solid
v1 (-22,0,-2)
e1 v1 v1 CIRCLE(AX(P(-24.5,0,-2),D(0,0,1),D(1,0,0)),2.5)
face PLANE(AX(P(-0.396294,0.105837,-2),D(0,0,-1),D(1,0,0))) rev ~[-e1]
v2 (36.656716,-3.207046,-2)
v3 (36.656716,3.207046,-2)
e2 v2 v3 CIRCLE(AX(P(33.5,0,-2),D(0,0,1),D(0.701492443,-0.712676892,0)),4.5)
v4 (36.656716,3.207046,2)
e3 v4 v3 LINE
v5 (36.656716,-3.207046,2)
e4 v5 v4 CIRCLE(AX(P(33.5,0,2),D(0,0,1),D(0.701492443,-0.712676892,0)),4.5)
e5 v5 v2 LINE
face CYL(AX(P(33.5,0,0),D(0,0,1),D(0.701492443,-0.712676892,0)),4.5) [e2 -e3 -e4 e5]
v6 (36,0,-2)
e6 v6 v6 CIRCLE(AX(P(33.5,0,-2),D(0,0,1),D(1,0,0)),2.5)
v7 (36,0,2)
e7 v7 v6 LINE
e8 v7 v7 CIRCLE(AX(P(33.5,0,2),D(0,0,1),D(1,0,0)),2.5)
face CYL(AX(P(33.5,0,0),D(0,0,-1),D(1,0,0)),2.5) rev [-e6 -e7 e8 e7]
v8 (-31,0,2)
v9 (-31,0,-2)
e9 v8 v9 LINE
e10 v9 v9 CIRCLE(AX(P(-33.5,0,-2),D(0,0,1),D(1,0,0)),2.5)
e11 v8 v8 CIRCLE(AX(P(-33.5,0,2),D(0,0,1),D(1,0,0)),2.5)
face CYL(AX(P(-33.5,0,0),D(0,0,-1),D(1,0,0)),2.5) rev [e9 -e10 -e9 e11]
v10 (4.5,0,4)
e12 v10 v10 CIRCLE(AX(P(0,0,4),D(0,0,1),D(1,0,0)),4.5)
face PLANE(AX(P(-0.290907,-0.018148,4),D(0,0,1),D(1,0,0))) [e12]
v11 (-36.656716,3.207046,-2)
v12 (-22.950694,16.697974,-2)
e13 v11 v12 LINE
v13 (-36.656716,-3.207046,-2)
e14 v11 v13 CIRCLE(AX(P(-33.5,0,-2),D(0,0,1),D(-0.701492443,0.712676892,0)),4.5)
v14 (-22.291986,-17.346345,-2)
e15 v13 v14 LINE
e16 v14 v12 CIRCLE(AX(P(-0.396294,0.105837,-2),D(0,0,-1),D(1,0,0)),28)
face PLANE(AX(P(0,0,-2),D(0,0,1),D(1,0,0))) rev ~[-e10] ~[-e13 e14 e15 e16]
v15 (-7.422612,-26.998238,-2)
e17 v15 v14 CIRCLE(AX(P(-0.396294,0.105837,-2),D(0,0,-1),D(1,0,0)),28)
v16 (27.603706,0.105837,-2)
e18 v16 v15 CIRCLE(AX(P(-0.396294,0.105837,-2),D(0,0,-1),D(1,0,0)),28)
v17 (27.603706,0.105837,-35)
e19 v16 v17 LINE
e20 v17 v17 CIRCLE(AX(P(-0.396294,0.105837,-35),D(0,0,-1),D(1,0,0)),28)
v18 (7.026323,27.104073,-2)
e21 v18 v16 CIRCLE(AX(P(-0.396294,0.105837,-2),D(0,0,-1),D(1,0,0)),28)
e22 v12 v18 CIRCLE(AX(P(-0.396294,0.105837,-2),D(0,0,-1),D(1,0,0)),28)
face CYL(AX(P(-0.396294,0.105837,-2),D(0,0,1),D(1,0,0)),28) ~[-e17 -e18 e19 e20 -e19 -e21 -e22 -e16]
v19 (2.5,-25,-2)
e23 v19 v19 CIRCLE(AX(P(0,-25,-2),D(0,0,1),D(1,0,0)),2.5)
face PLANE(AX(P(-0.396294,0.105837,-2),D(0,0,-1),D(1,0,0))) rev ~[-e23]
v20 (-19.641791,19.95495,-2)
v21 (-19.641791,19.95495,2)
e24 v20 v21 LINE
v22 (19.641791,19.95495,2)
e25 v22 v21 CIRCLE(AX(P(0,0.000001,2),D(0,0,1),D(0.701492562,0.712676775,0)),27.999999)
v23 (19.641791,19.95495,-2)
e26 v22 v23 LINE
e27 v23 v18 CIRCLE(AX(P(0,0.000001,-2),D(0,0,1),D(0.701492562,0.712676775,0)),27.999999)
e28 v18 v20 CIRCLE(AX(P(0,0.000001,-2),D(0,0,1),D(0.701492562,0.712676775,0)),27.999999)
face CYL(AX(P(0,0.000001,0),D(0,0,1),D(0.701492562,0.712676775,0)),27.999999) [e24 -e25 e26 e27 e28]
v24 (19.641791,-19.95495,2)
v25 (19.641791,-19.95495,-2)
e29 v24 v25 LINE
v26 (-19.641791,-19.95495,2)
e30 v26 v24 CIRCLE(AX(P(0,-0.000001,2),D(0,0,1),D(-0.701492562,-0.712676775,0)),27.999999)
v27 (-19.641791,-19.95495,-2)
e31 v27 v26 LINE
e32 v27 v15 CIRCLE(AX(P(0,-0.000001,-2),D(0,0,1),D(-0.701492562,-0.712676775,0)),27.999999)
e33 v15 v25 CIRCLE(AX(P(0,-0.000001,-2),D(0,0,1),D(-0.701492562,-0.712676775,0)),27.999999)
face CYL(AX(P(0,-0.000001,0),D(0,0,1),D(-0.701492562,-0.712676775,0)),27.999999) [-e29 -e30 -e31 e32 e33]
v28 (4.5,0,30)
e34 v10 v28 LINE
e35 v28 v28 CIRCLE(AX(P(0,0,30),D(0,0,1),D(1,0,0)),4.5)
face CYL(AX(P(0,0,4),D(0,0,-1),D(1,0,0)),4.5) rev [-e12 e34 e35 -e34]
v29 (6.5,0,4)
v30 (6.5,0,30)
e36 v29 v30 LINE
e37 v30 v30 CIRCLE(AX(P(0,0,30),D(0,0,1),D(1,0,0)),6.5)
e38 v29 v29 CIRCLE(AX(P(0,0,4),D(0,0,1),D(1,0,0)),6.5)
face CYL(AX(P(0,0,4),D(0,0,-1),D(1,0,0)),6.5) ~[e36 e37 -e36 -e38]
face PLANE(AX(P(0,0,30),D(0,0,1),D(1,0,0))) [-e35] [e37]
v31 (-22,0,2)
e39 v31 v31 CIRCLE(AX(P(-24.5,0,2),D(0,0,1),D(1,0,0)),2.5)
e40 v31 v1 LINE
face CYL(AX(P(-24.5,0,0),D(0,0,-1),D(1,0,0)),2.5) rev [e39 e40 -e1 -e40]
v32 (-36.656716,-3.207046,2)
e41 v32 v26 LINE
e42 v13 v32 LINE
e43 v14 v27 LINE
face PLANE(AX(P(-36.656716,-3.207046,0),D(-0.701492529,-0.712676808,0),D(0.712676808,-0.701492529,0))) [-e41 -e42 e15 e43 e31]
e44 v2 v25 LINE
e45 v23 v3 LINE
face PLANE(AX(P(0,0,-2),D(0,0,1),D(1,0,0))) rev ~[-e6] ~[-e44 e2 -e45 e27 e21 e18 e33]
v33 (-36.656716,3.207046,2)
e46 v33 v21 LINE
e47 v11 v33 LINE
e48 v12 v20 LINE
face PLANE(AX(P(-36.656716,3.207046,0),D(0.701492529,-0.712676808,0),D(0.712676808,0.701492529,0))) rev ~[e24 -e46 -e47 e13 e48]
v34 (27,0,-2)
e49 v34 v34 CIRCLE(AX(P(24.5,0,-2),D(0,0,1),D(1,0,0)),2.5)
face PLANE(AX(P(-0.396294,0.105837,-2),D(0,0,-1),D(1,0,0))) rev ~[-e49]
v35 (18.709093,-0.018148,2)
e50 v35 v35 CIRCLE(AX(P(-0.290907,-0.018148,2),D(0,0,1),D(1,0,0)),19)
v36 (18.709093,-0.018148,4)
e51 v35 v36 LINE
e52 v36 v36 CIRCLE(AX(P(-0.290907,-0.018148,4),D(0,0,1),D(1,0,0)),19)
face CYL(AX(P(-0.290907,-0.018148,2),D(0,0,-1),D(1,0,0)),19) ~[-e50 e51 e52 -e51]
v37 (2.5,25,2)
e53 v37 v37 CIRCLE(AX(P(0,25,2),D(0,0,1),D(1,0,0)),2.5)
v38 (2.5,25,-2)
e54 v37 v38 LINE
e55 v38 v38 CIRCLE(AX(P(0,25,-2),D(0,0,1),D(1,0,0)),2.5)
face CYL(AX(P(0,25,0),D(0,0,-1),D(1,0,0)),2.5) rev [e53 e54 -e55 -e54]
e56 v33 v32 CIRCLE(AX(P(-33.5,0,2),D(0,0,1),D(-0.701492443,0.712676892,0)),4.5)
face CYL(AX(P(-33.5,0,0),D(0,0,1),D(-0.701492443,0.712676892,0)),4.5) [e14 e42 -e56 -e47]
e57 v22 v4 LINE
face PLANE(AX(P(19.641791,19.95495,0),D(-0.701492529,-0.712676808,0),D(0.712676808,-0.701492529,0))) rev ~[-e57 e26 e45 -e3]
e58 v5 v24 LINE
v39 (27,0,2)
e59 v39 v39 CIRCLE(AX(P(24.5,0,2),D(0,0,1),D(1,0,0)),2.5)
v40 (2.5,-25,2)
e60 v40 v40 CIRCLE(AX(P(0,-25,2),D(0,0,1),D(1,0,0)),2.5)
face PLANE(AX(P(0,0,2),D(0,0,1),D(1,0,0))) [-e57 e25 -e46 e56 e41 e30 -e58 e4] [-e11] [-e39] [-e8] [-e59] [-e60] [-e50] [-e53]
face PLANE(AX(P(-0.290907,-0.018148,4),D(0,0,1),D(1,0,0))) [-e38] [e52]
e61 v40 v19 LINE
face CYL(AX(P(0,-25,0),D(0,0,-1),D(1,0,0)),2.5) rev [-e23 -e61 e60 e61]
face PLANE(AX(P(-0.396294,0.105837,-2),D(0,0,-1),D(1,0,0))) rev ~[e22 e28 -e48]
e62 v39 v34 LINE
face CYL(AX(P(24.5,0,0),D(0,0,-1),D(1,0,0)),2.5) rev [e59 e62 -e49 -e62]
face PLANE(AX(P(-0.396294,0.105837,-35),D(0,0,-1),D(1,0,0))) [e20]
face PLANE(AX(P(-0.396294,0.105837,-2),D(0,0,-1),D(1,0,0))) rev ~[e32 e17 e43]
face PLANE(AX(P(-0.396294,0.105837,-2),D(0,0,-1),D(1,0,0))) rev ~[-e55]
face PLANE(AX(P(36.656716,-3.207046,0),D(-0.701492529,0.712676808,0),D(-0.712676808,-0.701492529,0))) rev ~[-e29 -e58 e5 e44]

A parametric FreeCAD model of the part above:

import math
import FreeCAD as App
import Part
import Sketcher

V = App.Vector

doc = App.newDocument("Part")
body = doc.addObject("PartDesign::Body", "Body")

# Sketch on XY plane
sketch1 = body.newObject("Sketcher::SketchObject", "Sketch")
sketch1.AttachmentSupport = (doc.getObject("XY_Plane"), [""])
sketch1.MapMode = "FlatFace"
sketch1.addGeometry([
    Part.ArcOfCircle(Part.Circle(V(0, 0, 0), V(0, 0, 1), 28), math.radians(45), math.radians(135)),  # 0
    Part.LineSegment(V(-19.6, 20, 0), V(-36.7, 3.2, 0)),  # 1
    Part.ArcOfCircle(Part.Circle(V(-33.5, 0, 0), V(0, 0, 1), 4.5), math.radians(135), math.radians(225)),  # 2
    Part.LineSegment(V(-36.7, -3.2, 0), V(-19.6, -20, 0)),  # 3
    Part.ArcOfCircle(Part.Circle(V(0, 0, 0), V(0, 0, 1), 28), math.radians(-135), math.radians(-45)),  # 4
    Part.LineSegment(V(19.6, -20, 0), V(36.7, -3.2, 0)),  # 5
    Part.ArcOfCircle(Part.Circle(V(33.5, 0, 0), V(0, 0, 1), 4.5), math.radians(-45), math.radians(45)),  # 6
    Part.LineSegment(V(36.7, 3.2, 0), V(19.6, 20, 0)),  # 7
    Part.Circle(V(0, -25, 0), V(0, 0, 1), 2.5),  # 8
    Part.Circle(V(-33.5, 0, 0), V(0, 0, 1), 2.5),  # 9
    Part.Circle(V(-24.5, 0, 0), V(0, 0, 1), 2.5),  # 10
    Part.Circle(V(24.5, 0, 0), V(0, 0, 1), 2.5),  # 11
    Part.Circle(V(33.5, 0, 0), V(0, 0, 1), 2.5),  # 12
    Part.Circle(V(0, 25, 0), V(0, 0, 1), 2.5),  # 13
], False)
sketch1.addConstraint([
    Sketcher.Constraint("Tangent", 0, 2, 1, 1),
    Sketcher.Constraint("Tangent", 1, 2, 2, 1),
    Sketcher.Constraint("Tangent", 2, 2, 3, 1),
    Sketcher.Constraint("Tangent", 3, 2, 4, 1),
    Sketcher.Constraint("Tangent", 4, 2, 5, 1),
    Sketcher.Constraint("Tangent", 5, 2, 6, 1),
    Sketcher.Constraint("Tangent", 6, 2, 7, 1),
    Sketcher.Constraint("Tangent", 7, 2, 0, 1),
    Sketcher.Constraint("Coincident", 0, 3, -1, 1),
    Sketcher.Constraint("Coincident", 4, 3, -1, 1),
    Sketcher.Constraint("Coincident", 9, 3, 2, 3),
    Sketcher.Constraint("Coincident", 12, 3, 6, 3),
    Sketcher.Constraint("Equal", 0, 4),
    Sketcher.Constraint("Equal", 2, 6),
    Sketcher.Constraint("Equal", 8, 9),
    Sketcher.Constraint("Equal", 9, 10),
    Sketcher.Constraint("Equal", 10, 11),
    Sketcher.Constraint("Equal", 11, 12),
    Sketcher.Constraint("Equal", 12, 13),
    Sketcher.Constraint("Symmetric", 2, 3, 6, 3, -1, 1),
    Sketcher.Constraint("Symmetric", 10, 3, 11, 3, -1, 1),
    Sketcher.Constraint("Symmetric", 8, 3, 13, 3, -1, 1),
    Sketcher.Constraint("PointOnObject", 2, 3, -1),
    Sketcher.Constraint("PointOnObject", 8, 3, -2),
    Sketcher.Constraint("PointOnObject", 10, 3, -1),
    Sketcher.Constraint("Diameter", 8, 5.0),
    Sketcher.Constraint("Radius", 0, 27.999999),
    Sketcher.Constraint("Radius", 2, 4.5),
    Sketcher.Constraint("DistanceY", 8, 3, -1, 1, 25.0),
    Sketcher.Constraint("DistanceX", 2, 3, 6, 3, 67.0),
    Sketcher.Constraint("DistanceX", 9, 3, 10, 3, 9.0),
])
pad1 = body.newObject("PartDesign::Pad", "Pad")
pad1.Profile = sketch1
pad1.Length = 4
pad1.Midplane = True

# Sketch on XY plane
sketch2 = body.newObject("Sketcher::SketchObject", "Sketch001")
sketch2.AttachmentSupport = (doc.getObject("XY_Plane"), [""])
sketch2.MapMode = "FlatFace"
sketch2.AttachmentOffset = App.Placement(V(0, 0, 2), App.Rotation())
sketch2.addGeometry(Part.Circle(V(0, 0, 0), V(0, 0, 1), 19), False)
sketch2.addConstraint([
    Sketcher.Constraint("Diameter", 0, 38.0),
    Sketcher.Constraint("DistanceY", 0, 3, -1, 1, 0.018148),
    Sketcher.Constraint("DistanceX", 0, 3, -1, 1, 0.290907),
])
pad2 = body.newObject("PartDesign::Pad", "Pad001")
pad2.Profile = sketch2
pad2.Length = 2

# Sketch on XY plane
sketch3 = body.newObject("Sketcher::SketchObject", "Sketch002")
sketch3.AttachmentSupport = (doc.getObject("XY_Plane"), [""])
sketch3.MapMode = "FlatFace"
sketch3.AttachmentOffset = App.Placement(V(0, 0, 4), App.Rotation())
sketch3.addGeometry([
    Part.Circle(V(0, 0, 0), V(0, 0, 1), 6.5),
    Part.Circle(V(0, 0, 0), V(0, 0, 1), 4.5),
], False)
sketch3.addConstraint([
    Sketcher.Constraint("Coincident", 0, 3, -1, 1),
    Sketcher.Constraint("Coincident", 1, 3, -1, 1),
    Sketcher.Constraint("Diameter", 0, 13.0),
    Sketcher.Constraint("Diameter", 1, 9.0),
])
pad3 = body.newObject("PartDesign::Pad", "Pad002")
pad3.Profile = sketch3
pad3.Length = 26

# Sketch on XY plane
sketch4 = body.newObject("Sketcher::SketchObject", "Sketch003")
sketch4.AttachmentSupport = (doc.getObject("XY_Plane"), [""])
sketch4.MapMode = "FlatFace"
sketch4.AttachmentOffset = App.Placement(V(0, 0, -2), App.Rotation())
sketch4.addGeometry(Part.Circle(V(0, 0, 0), V(0, 0, 1), 28), False)
sketch4.addConstraint([
    Sketcher.Constraint("Diameter", 0, 56.0),
    Sketcher.Constraint("DistanceX", 0, 3, -1, 1, 0.396294),
    Sketcher.Constraint("DistanceY", -1, 1, 0, 3, 0.105837),
])
pad4 = body.newObject("PartDesign::Pad", "Pad003")
pad4.Profile = sketch4
pad4.Length = 33
pad4.Reversed = True

doc.recompute()
